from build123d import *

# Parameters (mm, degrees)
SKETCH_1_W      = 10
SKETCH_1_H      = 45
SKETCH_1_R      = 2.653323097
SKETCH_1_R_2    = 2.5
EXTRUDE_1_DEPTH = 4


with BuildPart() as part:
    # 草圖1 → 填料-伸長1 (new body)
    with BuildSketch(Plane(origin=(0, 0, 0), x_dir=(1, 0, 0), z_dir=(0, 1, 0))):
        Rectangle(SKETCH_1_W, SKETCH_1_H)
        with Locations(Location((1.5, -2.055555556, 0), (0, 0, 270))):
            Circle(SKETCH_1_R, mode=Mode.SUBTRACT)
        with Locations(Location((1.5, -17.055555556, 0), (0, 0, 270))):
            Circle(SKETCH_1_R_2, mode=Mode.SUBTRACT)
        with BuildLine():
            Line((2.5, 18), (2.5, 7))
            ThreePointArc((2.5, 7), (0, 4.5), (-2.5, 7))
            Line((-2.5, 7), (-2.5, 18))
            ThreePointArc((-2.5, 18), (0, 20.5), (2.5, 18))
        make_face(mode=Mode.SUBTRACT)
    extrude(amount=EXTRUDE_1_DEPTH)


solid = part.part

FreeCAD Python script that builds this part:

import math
import FreeCAD as App
import Part
import Sketcher
from FreeCAD import Vector


def add_polygon(sketch, points):
    """Adds a closed chain of lines whose ends are joined by coincident constraints."""
    first, n = sketch.GeometryCount, len(points)
    for a, b in zip(points, points[1:] + points[:1]):
        sketch.addGeometry(Part.LineSegment(App.Vector(*a, 0), App.Vector(*b, 0)), False)
    for i in range(n):
        sketch.addConstraint(Sketcher.Constraint("Coincident", first + i, 2, first + (i + 1) % n, 1))

doc = App.newDocument("Part")
params = doc.addObject("Spreadsheet::Sheet", "Params")
for row, (alias, value) in enumerate([
    ("sketch1_diameter", "5 mm"),
    ("sketch1_width", "10 mm"),
    ("sketch1_height", "45 mm"),
    ("sketch1_height2", "11 mm"),
    ("pad1_length", "4 mm"),
], start=1):
    params.set(f"A{row}", alias)
    params.set(f"B{row}", "=" + value)
    params.setAlias(f"B{row}", alias)

body = doc.addObject("PartDesign::Body", "Body")

sketch1 = body.newObject("Sketcher::SketchObject", "Sketch")
sketch1.AttachmentSupport = (doc.getObject("XZ_Plane"), [""])
sketch1.MapMode = "FlatFace"
add_polygon(sketch1, [(-5, -22.5), (-5, 22.5), (5, 22.5), (5, -22.5)])
sketch1.addGeometry(Part.Circle(Vector(1.5, 17.1, 0), Vector(0, 0, 1), 2.5), False)
sketch1.addGeometry(Part.Circle(Vector(1.5, 2.1, 0), Vector(0, 0, 1), 2.7), False)
sketch1.addGeometry(Part.ArcOfCircle(Part.Circle(Vector(0, -18, 0), Vector(0, 0, 1), 2.5), math.radians(180), math.radians(360)), False)
sketch1.addGeometry(Part.LineSegment(Vector(2.5, -18, 0), Vector(2.5, -7, 0)), False)
sketch1.addGeometry(Part.ArcOfCircle(Part.Circle(Vector(0, -7, 0), Vector(0, 0, 1), 2.5), math.radians(0), math.radians(180)), False)
sketch1.addGeometry(Part.LineSegment(Vector(-2.5, -7, 0), Vector(-2.5, -18, 0)), False)
sketch1.addConstraint([
    Sketcher.Constraint("Tangent", 6, 2, 7, 1),
    Sketcher.Constraint("Tangent", 7, 2, 8, 1),
    Sketcher.Constraint("Tangent", 8, 2, 9, 1),
    Sketcher.Constraint("Tangent", 9, 2, 6, 1),
    Sketcher.Constraint("Vertical", 0),
    Sketcher.Constraint("Horizontal", 1),
    Sketcher.Constraint("Vertical", 2),
    Sketcher.Constraint("Horizontal", 3),
    Sketcher.Constraint("Vertical", 7),
    Sketcher.Constraint("Vertical", 9),
    Sketcher.Constraint("Equal", 4, 6),
    Sketcher.Constraint("Symmetric", 0, 2, 2, 2, -1, 1),
    Sketcher.Constraint("PointOnObject", 6, 3, -2),
    Sketcher.Constraint("Vertical", 4, 3, 5, 3),
    Sketcher.Constraint("Diameter", 4, 5.0),
    Sketcher.Constraint("DistanceX", 1, 1, 1, 2, 10.0),
    Sketcher.Constraint("DistanceY", 0, 1, 0, 2, 45.0),
    Sketcher.Constraint("DistanceY", 7, 1, 7, 2, 11.0),
    Sketcher.Constraint("DistanceY", 6, 3, -1, 1, 18.0),
    Sketcher.Constraint("DistanceY", 5, 3, 4, 3, 15.0),
    Sketcher.Constraint("DistanceX", 5, 3, 6, 2, 1.0),
    Sketcher.Constraint("Diameter", 5, 5.306646),
    Sketcher.Constraint("DistanceY", -1, 1, 4, 3, 17.055556),
])
sketch1.setExpression("Constraints[18]", "Params.sketch1_diameter")
sketch1.setExpression("Constraints[19]", "Params.sketch1_width")
sketch1.setExpression("Constraints[20]", "Params.sketch1_height")
sketch1.setExpression("Constraints[21]", "Params.sketch1_height2")
pad1 = body.newObject("PartDesign::Pad", "Pad")
pad1.Profile = sketch1
pad1.setExpression("Length", "Params.pad1_length")
pad1.Reversed = True

doc.recompute()
